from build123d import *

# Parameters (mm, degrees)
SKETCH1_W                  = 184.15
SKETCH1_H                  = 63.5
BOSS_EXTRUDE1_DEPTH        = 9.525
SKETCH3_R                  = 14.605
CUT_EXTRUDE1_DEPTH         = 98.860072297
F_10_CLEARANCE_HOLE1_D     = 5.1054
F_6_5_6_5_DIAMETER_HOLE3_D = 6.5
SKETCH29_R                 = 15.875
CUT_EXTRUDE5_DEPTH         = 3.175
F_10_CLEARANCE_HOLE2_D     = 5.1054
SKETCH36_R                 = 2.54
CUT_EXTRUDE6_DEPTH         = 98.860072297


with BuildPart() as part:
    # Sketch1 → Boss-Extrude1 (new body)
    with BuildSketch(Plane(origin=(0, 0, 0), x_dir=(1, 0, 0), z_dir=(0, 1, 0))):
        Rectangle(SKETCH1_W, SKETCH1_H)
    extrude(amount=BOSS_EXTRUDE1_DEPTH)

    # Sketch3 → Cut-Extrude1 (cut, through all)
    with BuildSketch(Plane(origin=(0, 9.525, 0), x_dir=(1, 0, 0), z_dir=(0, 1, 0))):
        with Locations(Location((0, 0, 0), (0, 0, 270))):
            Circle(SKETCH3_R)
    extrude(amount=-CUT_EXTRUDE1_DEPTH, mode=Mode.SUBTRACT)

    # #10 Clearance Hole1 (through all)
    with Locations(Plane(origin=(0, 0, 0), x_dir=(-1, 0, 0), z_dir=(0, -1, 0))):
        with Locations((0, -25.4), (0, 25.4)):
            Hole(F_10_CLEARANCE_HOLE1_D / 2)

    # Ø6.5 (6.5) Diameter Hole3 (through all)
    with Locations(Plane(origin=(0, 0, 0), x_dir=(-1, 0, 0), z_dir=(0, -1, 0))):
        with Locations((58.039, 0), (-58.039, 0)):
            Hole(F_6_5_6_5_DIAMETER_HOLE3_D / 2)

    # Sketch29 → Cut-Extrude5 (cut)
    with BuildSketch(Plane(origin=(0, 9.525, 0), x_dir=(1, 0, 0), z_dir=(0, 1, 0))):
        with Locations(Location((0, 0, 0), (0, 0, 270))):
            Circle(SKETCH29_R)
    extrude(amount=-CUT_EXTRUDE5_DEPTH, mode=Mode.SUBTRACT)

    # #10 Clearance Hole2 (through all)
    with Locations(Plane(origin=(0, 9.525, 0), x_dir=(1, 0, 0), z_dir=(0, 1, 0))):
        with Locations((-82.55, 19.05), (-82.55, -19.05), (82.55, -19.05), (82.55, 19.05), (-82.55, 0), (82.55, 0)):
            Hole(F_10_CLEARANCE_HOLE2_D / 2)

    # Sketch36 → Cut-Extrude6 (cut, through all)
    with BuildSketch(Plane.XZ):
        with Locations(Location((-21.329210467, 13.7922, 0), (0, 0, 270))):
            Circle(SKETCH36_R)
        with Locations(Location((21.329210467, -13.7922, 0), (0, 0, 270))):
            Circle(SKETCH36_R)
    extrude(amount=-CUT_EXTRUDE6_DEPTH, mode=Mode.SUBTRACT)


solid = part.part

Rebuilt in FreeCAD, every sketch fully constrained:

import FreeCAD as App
import Part
import Sketcher
Q = App.Units.Quantity

doc = App.newDocument("Part")
params = doc.addObject("Spreadsheet::Sheet", "Params")
for row, (alias, value) in enumerate([
    ("sketch1_height", "2.5 in"),
    ("sketch1_width", "7.25 in"),
    ("pad1_length", "0.375 in"),
    ("sketch2_diameter", "1.15 in"),
    ("sketch3_diameter", "0.201 in"),
    ("hole_diameter", "0.201 in"),
    ("hole2_diameter", "6.5 mm"),
    ("sketch5_diameter", "1.25 in"),
    ("pocket2_length", "0.125 in"),
    ("sketch6_diameter", "0.201 in"),
    ("hole3_diameter", "0.201 in"),
    ("sketch7_diameter", "0.2 in"),
], start=1):
    params.set(f"A{row}", alias)
    params.set(f"B{row}", "=" + value)
    params.setAlias(f"B{row}", alias)

body = doc.addObject("PartDesign::Body", "Body")

# Sketch on XZ plane
sketch1 = doc.addObject("Sketcher::SketchObject", "Sketch")
body.addObject(sketch1)
sketch1.AttachmentSupport = (doc.XZ_Plane, [""])
sketch1.MapMode = "FlatFace"
sketch1.addGeometry([
    Part.LineSegment(App.Vector(-92, -32, 0), App.Vector(-92, 32, 0)),
    Part.LineSegment(App.Vector(-92, 32, 0), App.Vector(92, 32, 0)),
    Part.LineSegment(App.Vector(92, 32, 0), App.Vector(92, -32, 0)),
    Part.LineSegment(App.Vector(92, -32, 0), App.Vector(-92, -32, 0)),
], False)
sketch1.addConstraint([
    Sketcher.Constraint("Coincident", 0, 2, 1, 1),
    Sketcher.Constraint("Coincident", 1, 2, 2, 1),
    Sketcher.Constraint("Coincident", 2, 2, 3, 1),
    Sketcher.Constraint("Coincident", 3, 2, 0, 1),
    Sketcher.Constraint("Vertical", 0),
    Sketcher.Constraint("Horizontal", 1),
    Sketcher.Constraint("Vertical", 2),
    Sketcher.Constraint("Horizontal", 3),
    Sketcher.Constraint("Symmetric", 0, 2, 2, 2, -1, 1),
    Sketcher.Constraint("DistanceY", 0, 1, 0, 2, Q("2.5 in")),
    Sketcher.Constraint("DistanceX", 1, 1, 1, 2, Q("7.25 in")),
])
sketch1.setExpression("Constraints[9]", "Params.sketch1_height")
sketch1.setExpression("Constraints[10]", "Params.sketch1_width")
pad1 = doc.addObject("PartDesign::Pad", "Pad")
body.addObject(pad1)
pad1.Profile = sketch1
pad1.setExpression("Length", "Params.pad1_length")
pad1.Reversed = True

# Sketch on XZ plane
sketch2 = doc.addObject("Sketcher::SketchObject", "Sketch001")
body.addObject(sketch2)
sketch2.AttachmentSupport = (doc.XZ_Plane, [""])
sketch2.MapMode = "FlatFace"
sketch2.AttachmentOffset = App.Placement(App.Vector(0, 0, -0.375 * 25.4), App.Rotation())
sketch2.addGeometry(Part.Circle(App.Vector(0, 0, 0), App.Vector(0, 0, 1), 15), False)
sketch2.addConstraint([
    Sketcher.Constraint("Coincident", 0, 3, -1, 1),
    Sketcher.Constraint("Diameter", 0, Q("1.15 in")),
])
sketch2.setExpression("Constraints[1]", "Params.sketch2_diameter")
pocket1 = doc.addObject("PartDesign::Pocket", "Pocket")
body.addObject(pocket1)
pocket1.Profile = sketch2
pocket1.Type = "ThroughAll"
pocket1.Reversed = True

# Sketch on XZ plane
sketch3 = doc.addObject("Sketcher::SketchObject", "Sketch002")
body.addObject(sketch3)
sketch3.AttachmentSupport = (doc.XZ_Plane, [""])
sketch3.MapMode = "FlatFace"
sketch3.addGeometry([
    Part.Circle(App.Vector(0, 25.4, 0), App.Vector(0, 0, 1), 2.6),
    Part.Circle(App.Vector(0, -25.4, 0), App.Vector(0, 0, 1), 2.6),
], False)
sketch3.addConstraint([
    Sketcher.Constraint("Equal", 0, 1),
    Sketcher.Constraint("Symmetric", 0, 3, 1, 3, -1, 1),
    Sketcher.Constraint("PointOnObject", 0, 3, -2),
    Sketcher.Constraint("Diameter", 0, Q("0.201 in")),
    Sketcher.Constraint("DistanceY", -1, 1, 0, 3, Q("1 in")),
])
sketch3.setExpression("Constraints[3]", "Params.sketch3_diameter")
doc.recompute()
hole = doc.addObject("PartDesign::Hole", "Hole")
body.addObject(hole)
hole.Profile = sketch3
hole.ThreadType = "None"
hole.setExpression("Diameter", "Params.hole_diameter")
hole.DepthType = "ThroughAll"

# Sketch on XZ plane
sketch4 = doc.addObject("Sketcher::SketchObject", "Sketch003")
body.addObject(sketch4)
sketch4.AttachmentSupport = (doc.XZ_Plane, [""])
sketch4.MapMode = "FlatFace"
sketch4.addGeometry([
    Part.Circle(App.Vector(-58, 0, 0), App.Vector(0, 0, 1), 3.2),
    Part.Circle(App.Vector(58, 0, 0), App.Vector(0, 0, 1), 3.2),
], False)
sketch4.addConstraint([
    Sketcher.Constraint("Equal", 0, 1),
    Sketcher.Constraint("Symmetric", 0, 3, 1, 3, -1, 1),
    Sketcher.Constraint("PointOnObject", 0, 3, -1),
    Sketcher.Constraint("Diameter", 0, Q("6.5 mm")),
    Sketcher.Constraint("DistanceX", 0, 3, 1, 3, Q("4.57 in")),
])
doc.recompute()
hole2 = doc.addObject("PartDesign::Hole", "Hole001")
body.addObject(hole2)
hole2.Profile = sketch4
hole2.ThreadType = "None"
hole2.setExpression("Diameter", "Params.hole2_diameter")
hole2.DepthType = "ThroughAll"

# Sketch on XZ plane
sketch5 = doc.addObject("Sketcher::SketchObject", "Sketch004")
body.addObject(sketch5)
sketch5.AttachmentSupport = (doc.XZ_Plane, [""])
sketch5.MapMode = "FlatFace"
sketch5.AttachmentOffset = App.Placement(App.Vector(0, 0, -0.375 * 25.4), App.Rotation())
sketch5.addGeometry(Part.Circle(App.Vector(0, 0, 0), App.Vector(0, 0, 1), 16), False)
sketch5.addConstraint([
    Sketcher.Constraint("Coincident", 0, 3, -1, 1),
    Sketcher.Constraint("Diameter", 0, Q("1.25 in")),
])
sketch5.setExpression("Constraints[1]", "Params.sketch5_diameter")
pocket2 = doc.addObject("PartDesign::Pocket", "Pocket001")
body.addObject(pocket2)
pocket2.Profile = sketch5
pocket2.setExpression("Length", "Params.pocket2_length")
pocket2.Reversed = True

# Sketch on XZ plane
sketch6 = doc.addObject("Sketcher::SketchObject", "Sketch005")
body.addObject(sketch6)
sketch6.AttachmentSupport = (doc.XZ_Plane, [""])
sketch6.MapMode = "FlatFace"
sketch6.AttachmentOffset = App.Placement(App.Vector(0, 0, -0.375 * 25.4), App.Rotation())
sketch6.addGeometry([
    Part.Circle(App.Vector(-82.5, -19.1, 0), App.Vector(0, 0, 1), 2.6),  # 0
    Part.Circle(App.Vector(-82.5, 19.1, 0), App.Vector(0, 0, 1), 2.6),  # 1
    Part.Circle(App.Vector(82.5, 19.1, 0), App.Vector(0, 0, 1), 2.6),  # 2
    Part.Circle(App.Vector(82.5, -19.1, 0), App.Vector(0, 0, 1), 2.6),  # 3
    Part.Circle(App.Vector(-82.5, 0, 0), App.Vector(0, 0, 1), 2.6),  # 4
    Part.Circle(App.Vector(82.5, 0, 0), App.Vector(0, 0, 1), 2.6),  # 5
], False)
sketch6.addConstraint([
    Sketcher.Constraint("Equal", 0, 1),
    Sketcher.Constraint("Equal", 1, 2),
    Sketcher.Constraint("Equal", 2, 3),
    Sketcher.Constraint("Equal", 3, 4),
    Sketcher.Constraint("Equal", 4, 5),
    Sketcher.Constraint("Symmetric", 0, 3, 2, 3, -1, 1),
    Sketcher.Constraint("Symmetric", 1, 3, 3, 3, -1, 1),
    Sketcher.Constraint("Symmetric", 4, 3, 5, 3, -1, 1),
    Sketcher.Constraint("Symmetric", 1, 3, 2, 3, -2),
    Sketcher.Constraint("PointOnObject", 4, 3, -1),
    Sketcher.Constraint("Vertical", 1, 3, 4, 3),
    Sketcher.Constraint("Diameter", 0, Q("0.201 in")),
    Sketcher.Constraint("DistanceY", 0, 3, 1, 3, Q("1.5 in")),
    Sketcher.Constraint("DistanceX", 1, 3, 2, 3, Q("6.5 in")),
])
sketch6.setExpression("Constraints[11]", "Params.sketch6_diameter")
doc.recompute()
hole3 = doc.addObject("PartDesign::Hole", "Hole002")
body.addObject(hole3)
hole3.Profile = sketch6
hole3.ThreadType = "None"
hole3.setExpression("Diameter", "Params.hole3_diameter")
hole3.DepthType = "ThroughAll"
hole3.Reversed = True

# Sketch on XZ plane
sketch7 = doc.addObject("Sketcher::SketchObject", "Sketch006")
body.addObject(sketch7)
sketch7.AttachmentSupport = (doc.XZ_Plane, [""])
sketch7.MapMode = "FlatFace"
sketch7.addGeometry([
    Part.Circle(App.Vector(-21.3, 13.8, 0), App.Vector(0, 0, 1), 2.5),
    Part.Circle(App.Vector(21.3, -13.8, 0), App.Vector(0, 0, 1), 2.5),
], False)
sketch7.addConstraint([
    Sketcher.Constraint("Equal", 0, 1),
    Sketcher.Constraint("Symmetric", 0, 3, 1, 3, -1, 1),
    Sketcher.Constraint("Diameter", 0, Q("0.2 in")),
    Sketcher.Constraint("DistanceY", -1, 1, 0, 3, Q("0.543 in")),
    Sketcher.Constraint("DistanceX", 0, 3, -1, 1, Q("21.32921 mm")),
])
sketch7.setExpression("Constraints[2]", "Params.sketch7_diameter")
pocket3 = doc.addObject("PartDesign::Pocket", "Pocket002")
body.addObject(pocket3)
pocket3.Profile = sketch7
pocket3.Type = "ThroughAll"

doc.recompute()
